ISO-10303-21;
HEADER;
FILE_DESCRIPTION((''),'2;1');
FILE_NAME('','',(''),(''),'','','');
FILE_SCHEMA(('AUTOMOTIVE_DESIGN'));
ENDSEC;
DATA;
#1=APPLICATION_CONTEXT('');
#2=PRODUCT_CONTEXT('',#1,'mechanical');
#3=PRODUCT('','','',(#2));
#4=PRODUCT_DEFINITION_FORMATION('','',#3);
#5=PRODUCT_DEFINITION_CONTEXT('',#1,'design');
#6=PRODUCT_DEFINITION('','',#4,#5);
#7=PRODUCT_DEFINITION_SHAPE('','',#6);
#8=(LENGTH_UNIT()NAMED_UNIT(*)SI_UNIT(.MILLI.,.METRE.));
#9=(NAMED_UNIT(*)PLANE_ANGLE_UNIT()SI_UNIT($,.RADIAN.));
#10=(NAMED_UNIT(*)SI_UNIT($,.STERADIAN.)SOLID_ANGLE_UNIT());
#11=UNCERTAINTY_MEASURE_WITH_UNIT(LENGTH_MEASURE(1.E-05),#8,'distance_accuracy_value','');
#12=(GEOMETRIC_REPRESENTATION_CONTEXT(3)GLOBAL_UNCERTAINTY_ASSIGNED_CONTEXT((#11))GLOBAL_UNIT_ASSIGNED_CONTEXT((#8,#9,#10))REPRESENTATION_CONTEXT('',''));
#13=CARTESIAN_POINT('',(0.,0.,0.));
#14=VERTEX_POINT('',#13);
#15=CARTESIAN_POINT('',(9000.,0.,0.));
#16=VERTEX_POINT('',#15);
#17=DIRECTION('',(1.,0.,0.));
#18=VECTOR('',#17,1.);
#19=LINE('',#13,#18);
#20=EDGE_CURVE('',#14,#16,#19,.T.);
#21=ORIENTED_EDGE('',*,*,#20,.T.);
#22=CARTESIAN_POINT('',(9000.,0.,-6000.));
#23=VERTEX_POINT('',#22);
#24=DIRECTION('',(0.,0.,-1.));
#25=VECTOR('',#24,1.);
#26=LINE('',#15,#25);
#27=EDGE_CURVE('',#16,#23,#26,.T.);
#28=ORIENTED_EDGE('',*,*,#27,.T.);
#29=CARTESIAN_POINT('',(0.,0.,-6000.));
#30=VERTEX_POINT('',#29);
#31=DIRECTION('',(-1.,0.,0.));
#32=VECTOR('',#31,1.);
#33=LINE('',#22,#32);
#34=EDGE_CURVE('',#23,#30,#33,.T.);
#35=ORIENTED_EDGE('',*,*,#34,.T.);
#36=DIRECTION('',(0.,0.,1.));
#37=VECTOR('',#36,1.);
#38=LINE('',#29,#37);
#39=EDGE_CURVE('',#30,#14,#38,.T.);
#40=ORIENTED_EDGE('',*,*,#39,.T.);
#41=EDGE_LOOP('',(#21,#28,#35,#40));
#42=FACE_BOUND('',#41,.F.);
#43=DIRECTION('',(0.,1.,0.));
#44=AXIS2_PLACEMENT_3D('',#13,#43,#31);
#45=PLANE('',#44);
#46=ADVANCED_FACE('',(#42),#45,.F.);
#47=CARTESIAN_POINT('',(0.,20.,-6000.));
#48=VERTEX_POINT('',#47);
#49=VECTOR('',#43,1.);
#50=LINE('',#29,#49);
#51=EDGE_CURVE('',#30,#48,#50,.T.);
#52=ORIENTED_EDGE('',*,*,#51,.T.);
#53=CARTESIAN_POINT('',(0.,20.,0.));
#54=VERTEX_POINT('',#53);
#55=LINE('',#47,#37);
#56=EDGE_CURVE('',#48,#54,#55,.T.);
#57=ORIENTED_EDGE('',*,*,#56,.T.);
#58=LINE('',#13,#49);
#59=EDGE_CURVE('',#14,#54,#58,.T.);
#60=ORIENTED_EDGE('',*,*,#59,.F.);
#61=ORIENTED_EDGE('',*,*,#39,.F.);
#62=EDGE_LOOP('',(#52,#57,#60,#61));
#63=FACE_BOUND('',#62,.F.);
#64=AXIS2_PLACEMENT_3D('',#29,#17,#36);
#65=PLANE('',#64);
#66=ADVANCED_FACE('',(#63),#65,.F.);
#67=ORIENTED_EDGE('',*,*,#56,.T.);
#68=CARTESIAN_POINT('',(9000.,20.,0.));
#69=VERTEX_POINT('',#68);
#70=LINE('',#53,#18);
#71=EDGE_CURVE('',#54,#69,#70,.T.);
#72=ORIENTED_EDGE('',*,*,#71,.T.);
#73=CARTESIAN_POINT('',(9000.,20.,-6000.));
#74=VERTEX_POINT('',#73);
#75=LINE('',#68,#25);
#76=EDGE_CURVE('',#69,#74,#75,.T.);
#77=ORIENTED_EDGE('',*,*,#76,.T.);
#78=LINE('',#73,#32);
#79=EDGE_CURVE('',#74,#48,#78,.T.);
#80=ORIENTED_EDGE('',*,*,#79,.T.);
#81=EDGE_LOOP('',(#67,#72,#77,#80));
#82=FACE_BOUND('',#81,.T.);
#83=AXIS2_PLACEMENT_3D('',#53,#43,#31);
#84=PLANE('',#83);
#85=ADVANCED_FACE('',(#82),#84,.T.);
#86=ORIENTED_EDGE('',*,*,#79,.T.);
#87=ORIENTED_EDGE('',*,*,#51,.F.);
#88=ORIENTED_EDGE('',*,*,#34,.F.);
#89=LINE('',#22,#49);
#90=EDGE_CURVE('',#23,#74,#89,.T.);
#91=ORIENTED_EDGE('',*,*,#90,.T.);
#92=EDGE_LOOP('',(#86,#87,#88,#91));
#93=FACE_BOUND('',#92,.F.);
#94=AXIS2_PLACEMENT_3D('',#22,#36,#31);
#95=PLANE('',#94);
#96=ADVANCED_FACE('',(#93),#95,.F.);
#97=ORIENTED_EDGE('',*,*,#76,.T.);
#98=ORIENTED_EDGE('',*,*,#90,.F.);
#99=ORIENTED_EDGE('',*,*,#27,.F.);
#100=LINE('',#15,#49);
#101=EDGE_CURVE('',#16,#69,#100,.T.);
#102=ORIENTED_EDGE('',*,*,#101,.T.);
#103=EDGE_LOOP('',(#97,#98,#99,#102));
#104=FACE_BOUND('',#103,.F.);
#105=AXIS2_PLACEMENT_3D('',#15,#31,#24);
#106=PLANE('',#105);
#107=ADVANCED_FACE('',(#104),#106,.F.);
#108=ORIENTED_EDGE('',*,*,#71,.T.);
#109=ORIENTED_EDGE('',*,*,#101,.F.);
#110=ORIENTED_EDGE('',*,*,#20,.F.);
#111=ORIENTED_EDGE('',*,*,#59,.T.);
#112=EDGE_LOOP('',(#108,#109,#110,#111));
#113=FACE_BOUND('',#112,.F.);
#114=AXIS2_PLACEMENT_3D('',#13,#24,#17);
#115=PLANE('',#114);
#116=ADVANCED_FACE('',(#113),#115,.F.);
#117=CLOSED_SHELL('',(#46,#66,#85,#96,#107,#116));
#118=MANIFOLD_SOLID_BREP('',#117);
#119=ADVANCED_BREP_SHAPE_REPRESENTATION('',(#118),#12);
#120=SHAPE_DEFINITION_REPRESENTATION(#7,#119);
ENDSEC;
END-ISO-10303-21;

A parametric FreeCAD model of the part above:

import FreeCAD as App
import Part
import Sketcher
Q = App.Units.Quantity

doc = App.newDocument("Part")
body = doc.addObject("PartDesign::Body", "Body")

sketch1 = body.newObject("Sketcher::SketchObject", "Sketch")
sketch1.AttachmentSupport = (doc.getObject("XZ_Plane"), [""])
sketch1.MapMode = "FlatFace"
sketch1.addGeometry([
    Part.LineSegment(App.Vector(0, -6000, 0), App.Vector(0, 0, 0)),
    Part.LineSegment(App.Vector(0, 0, 0), App.Vector(9000, 0, 0)),
    Part.LineSegment(App.Vector(9000, 0, 0), App.Vector(9000, -6000, 0)),
    Part.LineSegment(App.Vector(9000, -6000, 0), App.Vector(0, -6000, 0)),
], False)
sketch1.addConstraint([
    Sketcher.Constraint("Coincident", 0, 2, 1, 1),
    Sketcher.Constraint("Coincident", 1, 2, 2, 1),
    Sketcher.Constraint("Coincident", 2, 2, 3, 1),
    Sketcher.Constraint("Coincident", 3, 2, 0, 1),
    Sketcher.Constraint("Vertical", 0),
    Sketcher.Constraint("Horizontal", 1),
    Sketcher.Constraint("Vertical", 2),
    Sketcher.Constraint("Horizontal", 3),
    Sketcher.Constraint("Coincident", 0, 2, -1, 1),
    Sketcher.Constraint("DistanceX", 1, 1, 1, 2, Q("9000 mm")),
    Sketcher.Constraint("DistanceY", 0, 1, 0, 2, Q("6000 mm")),
])
pad1 = body.newObject("PartDesign::Pad", "Pad")
pad1.Profile = sketch1
pad1.Length = 20
pad1.Reversed = True

doc.recompute()
